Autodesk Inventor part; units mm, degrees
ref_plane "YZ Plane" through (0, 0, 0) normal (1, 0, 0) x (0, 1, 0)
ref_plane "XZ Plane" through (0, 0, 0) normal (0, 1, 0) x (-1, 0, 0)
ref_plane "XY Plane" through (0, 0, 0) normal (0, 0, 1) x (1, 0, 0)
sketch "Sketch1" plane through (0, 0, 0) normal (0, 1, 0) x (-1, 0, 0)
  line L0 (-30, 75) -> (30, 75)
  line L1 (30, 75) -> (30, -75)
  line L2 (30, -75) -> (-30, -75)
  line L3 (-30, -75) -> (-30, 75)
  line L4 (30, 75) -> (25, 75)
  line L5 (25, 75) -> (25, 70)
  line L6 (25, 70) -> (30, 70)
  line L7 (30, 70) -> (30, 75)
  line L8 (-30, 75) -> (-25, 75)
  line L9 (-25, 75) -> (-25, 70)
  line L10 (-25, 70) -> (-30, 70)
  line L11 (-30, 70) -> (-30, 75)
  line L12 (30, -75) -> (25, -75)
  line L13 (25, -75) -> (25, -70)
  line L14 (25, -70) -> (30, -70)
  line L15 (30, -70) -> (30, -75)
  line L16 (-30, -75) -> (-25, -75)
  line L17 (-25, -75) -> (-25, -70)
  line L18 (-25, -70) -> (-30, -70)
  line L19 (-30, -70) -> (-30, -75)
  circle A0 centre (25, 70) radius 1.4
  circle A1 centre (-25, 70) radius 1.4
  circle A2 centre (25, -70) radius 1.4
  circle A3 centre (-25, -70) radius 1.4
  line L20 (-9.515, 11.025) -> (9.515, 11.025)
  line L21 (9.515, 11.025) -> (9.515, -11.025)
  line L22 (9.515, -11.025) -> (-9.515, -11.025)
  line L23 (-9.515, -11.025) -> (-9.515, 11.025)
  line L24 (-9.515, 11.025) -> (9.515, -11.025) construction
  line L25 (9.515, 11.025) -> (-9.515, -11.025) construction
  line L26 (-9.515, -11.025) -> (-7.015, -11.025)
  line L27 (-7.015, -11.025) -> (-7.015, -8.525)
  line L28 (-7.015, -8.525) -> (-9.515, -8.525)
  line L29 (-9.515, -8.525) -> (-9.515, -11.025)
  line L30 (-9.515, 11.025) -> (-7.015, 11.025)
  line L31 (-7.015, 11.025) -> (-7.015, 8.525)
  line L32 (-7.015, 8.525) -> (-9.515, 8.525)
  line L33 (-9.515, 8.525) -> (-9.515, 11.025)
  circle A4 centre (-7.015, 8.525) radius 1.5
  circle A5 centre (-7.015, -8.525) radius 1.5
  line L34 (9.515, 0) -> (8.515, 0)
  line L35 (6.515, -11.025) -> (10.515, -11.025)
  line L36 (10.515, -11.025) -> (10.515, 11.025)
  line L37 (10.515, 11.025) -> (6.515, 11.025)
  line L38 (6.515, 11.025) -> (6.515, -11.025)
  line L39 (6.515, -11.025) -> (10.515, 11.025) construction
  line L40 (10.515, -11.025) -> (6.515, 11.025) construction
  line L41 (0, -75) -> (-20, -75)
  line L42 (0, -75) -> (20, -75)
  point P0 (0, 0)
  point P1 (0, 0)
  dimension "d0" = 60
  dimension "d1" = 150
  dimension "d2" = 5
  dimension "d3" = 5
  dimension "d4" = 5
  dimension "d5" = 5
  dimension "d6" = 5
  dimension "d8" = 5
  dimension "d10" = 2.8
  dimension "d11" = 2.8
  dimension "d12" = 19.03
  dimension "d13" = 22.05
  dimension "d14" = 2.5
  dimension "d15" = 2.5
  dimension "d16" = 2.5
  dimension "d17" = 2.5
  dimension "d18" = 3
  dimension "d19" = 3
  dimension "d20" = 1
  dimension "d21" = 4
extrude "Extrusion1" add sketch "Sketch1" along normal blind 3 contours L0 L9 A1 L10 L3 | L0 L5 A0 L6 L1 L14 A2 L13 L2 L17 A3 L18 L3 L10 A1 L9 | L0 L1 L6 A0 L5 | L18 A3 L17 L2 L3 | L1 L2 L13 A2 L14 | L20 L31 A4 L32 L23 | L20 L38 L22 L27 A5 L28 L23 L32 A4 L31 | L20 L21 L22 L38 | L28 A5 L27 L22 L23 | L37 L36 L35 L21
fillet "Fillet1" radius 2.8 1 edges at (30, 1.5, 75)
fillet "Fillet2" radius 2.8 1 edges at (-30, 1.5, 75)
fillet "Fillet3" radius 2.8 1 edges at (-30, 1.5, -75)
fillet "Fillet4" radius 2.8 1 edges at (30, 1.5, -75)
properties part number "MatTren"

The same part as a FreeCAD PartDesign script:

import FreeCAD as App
import Part
import Sketcher


def edges_at(feature, points):
    """Names of the edges that pass closest to the given points."""
    edges = feature.Shape.Edges
    near = lambda p: min(range(len(edges)), key=lambda i: edges[i].distToShape(Part.Vertex(*p))[0])
    return sorted({f"Edge{near(p) + 1}" for p in points})


def add_polygon(sketch, points):
    """Adds a closed chain of lines whose ends are joined by coincident constraints."""
    first, n = sketch.GeometryCount, len(points)
    for a, b in zip(points, points[1:] + points[:1]):
        sketch.addGeometry(Part.LineSegment(App.Vector(*a, 0), App.Vector(*b, 0)), False)
    for i in range(n):
        sketch.addConstraint(Sketcher.Constraint("Coincident", first + i, 2, first + (i + 1) % n, 1))

doc = App.newDocument("Part")
body = doc.addObject("PartDesign::Body", "Body")

sketch1 = body.newObject("Sketcher::SketchObject", "Sketch")
sketch1.AttachmentSupport = (doc.getObject("XZ_Plane"), [""])
sketch1.MapMode = "FlatFace"
add_polygon(sketch1, [(30, 75), (30, -75), (-30, -75), (-30, 75)])
sketch1.addGeometry(Part.Circle(App.Vector(25, 70, 0), App.Vector(0, 0, 1), 1.4), False)
sketch1.addGeometry(Part.Circle(App.Vector(-25, 70, 0), App.Vector(0, 0, 1), 1.4), False)
sketch1.addGeometry(Part.Circle(App.Vector(-25, -70, 0), App.Vector(0, 0, 1), 1.4), False)
sketch1.addGeometry(Part.Circle(App.Vector(25, -70, 0), App.Vector(0, 0, 1), 1.4), False)
sketch1.addGeometry(Part.Circle(App.Vector(7, 8.5, 0), App.Vector(0, 0, 1), 1.5), False)
sketch1.addGeometry(Part.Circle(App.Vector(7, -8.5, 0), App.Vector(0, 0, 1), 1.5), False)
sketch1.addConstraint([
    Sketcher.Constraint("Vertical", 0),
    Sketcher.Constraint("Horizontal", 1),
    Sketcher.Constraint("Vertical", 2),
    Sketcher.Constraint("Horizontal", 3),
    Sketcher.Constraint("Equal", 4, 5),
    Sketcher.Constraint("Equal", 5, 6),
    Sketcher.Constraint("Equal", 6, 7),
    Sketcher.Constraint("Equal", 8, 9),
    Sketcher.Constraint("Symmetric", 4, 3, 6, 3, -1, 1),
    Sketcher.Constraint("Symmetric", 5, 3, 7, 3, -1, 1),
    Sketcher.Constraint("Symmetric", 0, 2, 2, 2, -1, 1),
    Sketcher.Constraint("Symmetric", 4, 3, 5, 3, -2),
    Sketcher.Constraint("Symmetric", 8, 3, 9, 3, -1),
    Sketcher.Constraint("Diameter", 8, 3.0),
    Sketcher.Constraint("Diameter", 4, 2.8),
    Sketcher.Constraint("DistanceX", 1, 2, 1, 1, 60.0),
    Sketcher.Constraint("DistanceY", 0, 2, 0, 1, 150.0),
    Sketcher.Constraint("DistanceX", 7, 3, 0, 2, 5.0),
    Sketcher.Constraint("DistanceY", 0, 2, 7, 3, 5.0),
    Sketcher.Constraint("DistanceY", 9, 3, 8, 3, 17.05),
    Sketcher.Constraint("DistanceX", -1, 1, 8, 3, 7.015),
])
pad1 = body.newObject("PartDesign::Pad", "Pad")
pad1.Profile = sketch1
pad1.Length = 3
pad1.Reversed = True
doc.recompute()

fillet = body.newObject("PartDesign::Fillet", "Fillet")
fillet.Base = (pad1, edges_at(pad1, [(30, 1.5, 75)]))
fillet.Radius = 2.8
doc.recompute()

fillet2 = body.newObject("PartDesign::Fillet", "Fillet001")
fillet2.Base = (fillet, edges_at(fillet, [(-30, 1.5, 75)]))
fillet2.Radius = 2.8
doc.recompute()

fillet3 = body.newObject("PartDesign::Fillet", "Fillet002")
fillet3.Base = (fillet2, edges_at(fillet2, [(-30, 1.5, -75)]))
fillet3.Radius = 2.8
doc.recompute()

fillet4 = body.newObject("PartDesign::Fillet", "Fillet003")
fillet4.Base = (fillet3, edges_at(fillet3, [(30, 1.5, -75)]))
fillet4.Radius = 2.8

doc.recompute()
